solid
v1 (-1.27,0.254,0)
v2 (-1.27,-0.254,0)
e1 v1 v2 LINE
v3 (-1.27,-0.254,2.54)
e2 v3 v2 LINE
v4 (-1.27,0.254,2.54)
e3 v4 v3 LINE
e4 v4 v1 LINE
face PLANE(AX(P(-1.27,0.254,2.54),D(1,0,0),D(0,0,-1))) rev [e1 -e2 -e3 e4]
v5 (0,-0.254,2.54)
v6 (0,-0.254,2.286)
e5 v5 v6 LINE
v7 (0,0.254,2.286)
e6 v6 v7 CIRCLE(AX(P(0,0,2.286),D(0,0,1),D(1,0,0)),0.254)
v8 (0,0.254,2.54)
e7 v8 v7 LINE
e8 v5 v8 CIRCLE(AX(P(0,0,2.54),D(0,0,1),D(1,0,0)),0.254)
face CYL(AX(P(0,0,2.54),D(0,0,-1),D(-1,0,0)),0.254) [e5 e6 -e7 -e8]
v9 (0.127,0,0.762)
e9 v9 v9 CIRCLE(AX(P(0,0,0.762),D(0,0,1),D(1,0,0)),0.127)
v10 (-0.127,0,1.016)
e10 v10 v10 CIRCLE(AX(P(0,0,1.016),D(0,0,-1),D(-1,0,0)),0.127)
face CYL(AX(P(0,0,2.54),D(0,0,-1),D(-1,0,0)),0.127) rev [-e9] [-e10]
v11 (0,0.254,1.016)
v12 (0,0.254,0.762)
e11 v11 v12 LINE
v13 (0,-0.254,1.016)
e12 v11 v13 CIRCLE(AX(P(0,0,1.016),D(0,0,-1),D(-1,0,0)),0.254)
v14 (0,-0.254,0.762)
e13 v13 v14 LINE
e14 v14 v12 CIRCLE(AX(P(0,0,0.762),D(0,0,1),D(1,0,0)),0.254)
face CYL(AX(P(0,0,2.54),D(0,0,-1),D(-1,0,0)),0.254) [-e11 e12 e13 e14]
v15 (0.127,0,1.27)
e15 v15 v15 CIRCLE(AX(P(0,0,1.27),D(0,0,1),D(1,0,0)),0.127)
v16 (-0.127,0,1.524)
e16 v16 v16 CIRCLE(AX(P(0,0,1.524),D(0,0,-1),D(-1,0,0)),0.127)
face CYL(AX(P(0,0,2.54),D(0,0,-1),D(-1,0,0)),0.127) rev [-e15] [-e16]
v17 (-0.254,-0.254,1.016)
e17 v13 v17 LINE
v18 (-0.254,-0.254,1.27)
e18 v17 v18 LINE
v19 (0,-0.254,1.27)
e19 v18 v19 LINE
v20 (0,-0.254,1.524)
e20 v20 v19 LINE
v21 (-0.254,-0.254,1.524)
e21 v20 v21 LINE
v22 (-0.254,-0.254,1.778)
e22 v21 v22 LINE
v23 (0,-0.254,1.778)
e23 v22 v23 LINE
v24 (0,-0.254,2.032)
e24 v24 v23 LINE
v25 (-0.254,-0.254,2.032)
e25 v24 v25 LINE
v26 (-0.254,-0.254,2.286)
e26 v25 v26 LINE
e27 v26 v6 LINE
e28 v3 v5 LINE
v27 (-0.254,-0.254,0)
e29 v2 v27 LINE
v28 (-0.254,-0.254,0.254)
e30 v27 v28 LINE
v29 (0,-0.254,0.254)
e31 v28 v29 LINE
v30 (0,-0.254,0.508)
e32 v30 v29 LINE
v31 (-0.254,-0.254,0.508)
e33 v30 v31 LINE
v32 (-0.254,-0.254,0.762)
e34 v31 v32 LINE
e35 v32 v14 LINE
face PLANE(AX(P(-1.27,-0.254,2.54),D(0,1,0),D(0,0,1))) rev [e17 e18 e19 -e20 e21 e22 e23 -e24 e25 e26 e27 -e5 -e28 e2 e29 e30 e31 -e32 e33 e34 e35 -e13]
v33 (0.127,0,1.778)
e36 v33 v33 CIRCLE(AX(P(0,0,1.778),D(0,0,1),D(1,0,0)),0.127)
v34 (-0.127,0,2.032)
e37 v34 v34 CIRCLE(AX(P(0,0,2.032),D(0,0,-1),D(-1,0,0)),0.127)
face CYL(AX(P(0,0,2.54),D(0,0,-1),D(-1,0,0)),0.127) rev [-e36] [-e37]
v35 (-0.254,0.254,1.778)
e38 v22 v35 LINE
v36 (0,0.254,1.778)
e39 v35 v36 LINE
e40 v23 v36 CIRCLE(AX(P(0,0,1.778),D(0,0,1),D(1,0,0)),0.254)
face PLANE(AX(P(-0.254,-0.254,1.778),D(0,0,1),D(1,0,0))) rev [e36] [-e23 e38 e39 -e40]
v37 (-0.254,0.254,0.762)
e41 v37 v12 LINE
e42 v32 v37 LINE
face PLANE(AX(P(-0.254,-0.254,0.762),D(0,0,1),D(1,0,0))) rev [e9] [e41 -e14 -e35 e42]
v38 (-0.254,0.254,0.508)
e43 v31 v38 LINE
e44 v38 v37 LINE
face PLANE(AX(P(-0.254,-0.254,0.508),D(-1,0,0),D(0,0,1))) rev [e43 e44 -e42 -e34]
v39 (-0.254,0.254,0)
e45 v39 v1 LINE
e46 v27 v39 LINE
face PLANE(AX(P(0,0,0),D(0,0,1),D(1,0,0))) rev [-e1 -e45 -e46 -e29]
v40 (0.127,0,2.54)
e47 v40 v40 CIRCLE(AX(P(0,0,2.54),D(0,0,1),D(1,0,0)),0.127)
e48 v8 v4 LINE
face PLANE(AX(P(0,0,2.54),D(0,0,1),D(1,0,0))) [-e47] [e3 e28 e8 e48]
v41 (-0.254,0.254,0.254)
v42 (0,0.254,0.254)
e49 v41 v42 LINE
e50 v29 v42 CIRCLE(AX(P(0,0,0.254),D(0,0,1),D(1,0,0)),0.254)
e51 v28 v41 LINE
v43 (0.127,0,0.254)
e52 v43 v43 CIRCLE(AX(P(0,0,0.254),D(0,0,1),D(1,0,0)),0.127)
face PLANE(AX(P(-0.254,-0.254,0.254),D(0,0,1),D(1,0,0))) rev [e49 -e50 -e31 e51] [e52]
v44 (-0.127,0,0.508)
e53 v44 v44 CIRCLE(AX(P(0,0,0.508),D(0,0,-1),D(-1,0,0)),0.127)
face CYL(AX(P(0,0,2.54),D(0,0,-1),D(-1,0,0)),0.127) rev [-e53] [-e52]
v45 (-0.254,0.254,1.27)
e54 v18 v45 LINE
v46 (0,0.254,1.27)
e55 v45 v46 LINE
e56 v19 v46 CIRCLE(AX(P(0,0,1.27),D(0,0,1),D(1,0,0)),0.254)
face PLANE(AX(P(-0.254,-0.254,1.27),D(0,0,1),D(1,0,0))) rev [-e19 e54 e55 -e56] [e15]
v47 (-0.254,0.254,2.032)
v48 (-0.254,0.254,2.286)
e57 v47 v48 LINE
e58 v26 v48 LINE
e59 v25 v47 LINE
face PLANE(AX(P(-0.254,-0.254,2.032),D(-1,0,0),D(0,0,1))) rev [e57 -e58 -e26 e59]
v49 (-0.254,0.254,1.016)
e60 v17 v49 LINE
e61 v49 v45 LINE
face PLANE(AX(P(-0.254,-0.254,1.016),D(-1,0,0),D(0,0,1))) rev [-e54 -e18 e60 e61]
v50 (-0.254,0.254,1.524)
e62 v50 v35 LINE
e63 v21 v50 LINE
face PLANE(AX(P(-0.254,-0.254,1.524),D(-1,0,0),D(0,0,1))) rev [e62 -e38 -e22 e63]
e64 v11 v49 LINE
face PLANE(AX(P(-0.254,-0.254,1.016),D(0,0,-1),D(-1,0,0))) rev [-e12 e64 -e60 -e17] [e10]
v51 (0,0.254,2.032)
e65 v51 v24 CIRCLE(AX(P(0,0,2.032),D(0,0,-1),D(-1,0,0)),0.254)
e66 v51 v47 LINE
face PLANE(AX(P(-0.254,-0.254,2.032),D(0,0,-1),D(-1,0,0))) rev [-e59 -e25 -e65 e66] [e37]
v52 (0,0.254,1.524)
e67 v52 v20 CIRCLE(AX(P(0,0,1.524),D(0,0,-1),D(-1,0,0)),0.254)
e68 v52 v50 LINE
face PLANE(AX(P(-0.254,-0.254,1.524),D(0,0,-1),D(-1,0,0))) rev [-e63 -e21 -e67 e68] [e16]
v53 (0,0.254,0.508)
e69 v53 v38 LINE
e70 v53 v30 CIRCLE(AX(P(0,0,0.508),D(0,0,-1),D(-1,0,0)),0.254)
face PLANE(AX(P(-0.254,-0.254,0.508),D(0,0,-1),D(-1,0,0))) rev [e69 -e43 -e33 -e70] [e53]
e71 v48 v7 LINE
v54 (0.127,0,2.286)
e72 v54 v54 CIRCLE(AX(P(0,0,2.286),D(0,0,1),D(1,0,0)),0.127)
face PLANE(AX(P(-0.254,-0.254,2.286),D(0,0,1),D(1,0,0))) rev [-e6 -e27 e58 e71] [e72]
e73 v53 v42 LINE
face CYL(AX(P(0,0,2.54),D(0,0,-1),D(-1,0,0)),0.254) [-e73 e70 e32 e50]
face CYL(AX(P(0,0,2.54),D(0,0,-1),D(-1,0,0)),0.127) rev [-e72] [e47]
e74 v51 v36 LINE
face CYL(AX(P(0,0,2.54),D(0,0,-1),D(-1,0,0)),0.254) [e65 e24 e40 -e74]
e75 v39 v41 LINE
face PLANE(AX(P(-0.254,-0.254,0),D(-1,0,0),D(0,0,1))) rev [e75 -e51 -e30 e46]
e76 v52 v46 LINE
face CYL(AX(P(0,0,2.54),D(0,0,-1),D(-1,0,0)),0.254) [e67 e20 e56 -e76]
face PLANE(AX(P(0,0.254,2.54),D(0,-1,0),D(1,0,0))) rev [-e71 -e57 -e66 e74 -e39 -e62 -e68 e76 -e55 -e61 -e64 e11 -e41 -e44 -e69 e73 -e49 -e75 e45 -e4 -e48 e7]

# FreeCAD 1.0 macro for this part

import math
import FreeCAD as App
import Part
import Sketcher
from FreeCAD import Vector
Q = App.Units.Quantity

doc = App.newDocument("Part")
body = doc.addObject("PartDesign::Body", "Body")

sketch1 = body.newObject("Sketcher::SketchObject", "Sketch")
sketch1.AttachmentSupport = (doc.getObject("XY_Plane"), [""])
sketch1.MapMode = "FlatFace"
sketch1.addGeometry([
    Part.LineSegment(Vector(0, 0.25, 0), Vector(-1.27, 0.25, 0)),
    Part.LineSegment(Vector(-1.27, 0.25, 0), Vector(-1.27, -0.25, 0)),
    Part.LineSegment(Vector(-1.27, -0.25, 0), Vector(0, -0.25, 0)),
    Part.ArcOfCircle(Part.Circle(Vector(0, 0, 0), Vector(0, 0, 1), 0.25), math.radians(-90), math.radians(90)),
    Part.Circle(Vector(0, 0, 0), Vector(0, 0, 1), 0.13),
], False)
sketch1.addConstraint([
    Sketcher.Constraint("Coincident", 0, 2, 1, 1),
    Sketcher.Constraint("Coincident", 1, 2, 2, 1),
    Sketcher.Constraint("Tangent", 2, 2, 3, 1),
    Sketcher.Constraint("Tangent", 3, 2, 0, 1),
    Sketcher.Constraint("Horizontal", 0),
    Sketcher.Constraint("Vertical", 1),
    Sketcher.Constraint("Horizontal", 2),
    Sketcher.Constraint("Coincident", 3, 3, -1, 1),
    Sketcher.Constraint("Coincident", 4, 3, -1, 1),
    Sketcher.Constraint("Diameter", 4, Q("0.01 in")),
    Sketcher.Constraint("Radius", 3, Q("0.01 in")),
    Sketcher.Constraint("DistanceX", 0, 2, 0, 1, Q("0.05 in")),
])
pad1 = body.newObject("PartDesign::Pad", "Pad")
pad1.Profile = sketch1
pad1.Length = Q("0.1 in")

sketch2 = body.newObject("Sketcher::SketchObject", "Sketch001")
sketch2.AttachmentSupport = (doc.getObject("XZ_Plane"), [""])
sketch2.MapMode = "FlatFace"
sketch2.AttachmentOffset = App.Placement(Vector(0, 0, -0.01 * 25.4), App.Rotation())
sketch2.addGeometry([
    Part.LineSegment(Vector(-0.25, 0, 0), Vector(-0.25, 0.25, 0)),
    Part.LineSegment(Vector(-0.25, 0.25, 0), Vector(0.25, 0.25, 0)),
    Part.LineSegment(Vector(0.25, 0.25, 0), Vector(0.25, 0, 0)),
    Part.LineSegment(Vector(0.25, 0, 0), Vector(-0.25, 0, 0)),
    Part.LineSegment(Vector(-0.25, 0.51, 0), Vector(-0.25, 0.76, 0)),
    Part.LineSegment(Vector(-0.25, 0.76, 0), Vector(0.25, 0.76, 0)),
    Part.LineSegment(Vector(0.25, 0.76, 0), Vector(0.25, 0.51, 0)),
    Part.LineSegment(Vector(0.25, 0.51, 0), Vector(-0.25, 0.51, 0)),
    Part.LineSegment(Vector(-0.25, 1.02, 0), Vector(-0.25, 1.27, 0)),
    Part.LineSegment(Vector(-0.25, 1.27, 0), Vector(0.25, 1.27, 0)),
    Part.LineSegment(Vector(0.25, 1.27, 0), Vector(0.25, 1.02, 0)),
    Part.LineSegment(Vector(0.25, 1.02, 0), Vector(-0.25, 1.02, 0)),
    Part.LineSegment(Vector(-0.25, 1.52, 0), Vector(-0.25, 1.78, 0)),
    Part.LineSegment(Vector(-0.25, 1.78, 0), Vector(0.25, 1.78, 0)),
    Part.LineSegment(Vector(0.25, 1.78, 0), Vector(0.25, 1.52, 0)),
    Part.LineSegment(Vector(0.25, 1.52, 0), Vector(-0.25, 1.52, 0)),
    Part.LineSegment(Vector(-0.25, 2.03, 0), Vector(-0.25, 2.29, 0)),
    Part.LineSegment(Vector(-0.25, 2.29, 0), Vector(0.25, 2.29, 0)),
    Part.LineSegment(Vector(0.25, 2.29, 0), Vector(0.25, 2.03, 0)),
    Part.LineSegment(Vector(0.25, 2.03, 0), Vector(-0.25, 2.03, 0)),
], False)
sketch2.addConstraint([
    Sketcher.Constraint("Coincident", 0, 2, 1, 1),
    Sketcher.Constraint("Coincident", 1, 2, 2, 1),
    Sketcher.Constraint("Coincident", 2, 2, 3, 1),
    Sketcher.Constraint("Coincident", 3, 2, 0, 1),
    Sketcher.Constraint("Coincident", 4, 2, 5, 1),
    Sketcher.Constraint("Coincident", 5, 2, 6, 1),
    Sketcher.Constraint("Coincident", 6, 2, 7, 1),
    Sketcher.Constraint("Coincident", 7, 2, 4, 1),
    Sketcher.Constraint("Coincident", 8, 2, 9, 1),
    Sketcher.Constraint("Coincident", 9, 2, 10, 1),
    Sketcher.Constraint("Coincident", 10, 2, 11, 1),
    Sketcher.Constraint("Coincident", 11, 2, 8, 1),
    Sketcher.Constraint("Coincident", 12, 2, 13, 1),
    Sketcher.Constraint("Coincident", 13, 2, 14, 1),
    Sketcher.Constraint("Coincident", 14, 2, 15, 1),
    Sketcher.Constraint("Coincident", 15, 2, 12, 1),
    Sketcher.Constraint("Coincident", 16, 2, 17, 1),
    Sketcher.Constraint("Coincident", 17, 2, 18, 1),
    Sketcher.Constraint("Coincident", 18, 2, 19, 1),
    Sketcher.Constraint("Coincident", 19, 2, 16, 1),
    Sketcher.Constraint("Vertical", 0),
    Sketcher.Constraint("Horizontal", 1),
    Sketcher.Constraint("Vertical", 2),
    Sketcher.Constraint("Horizontal", 3),
    Sketcher.Constraint("Vertical", 4),
    Sketcher.Constraint("Horizontal", 5),
    Sketcher.Constraint("Vertical", 6),
    Sketcher.Constraint("Horizontal", 7),
    Sketcher.Constraint("Vertical", 8),
    Sketcher.Constraint("Horizontal", 9),
    Sketcher.Constraint("Vertical", 10),
    Sketcher.Constraint("Horizontal", 11),
    Sketcher.Constraint("Vertical", 12),
    Sketcher.Constraint("Horizontal", 13),
    Sketcher.Constraint("Vertical", 14),
    Sketcher.Constraint("Horizontal", 15),
    Sketcher.Constraint("Vertical", 16),
    Sketcher.Constraint("Horizontal", 17),
    Sketcher.Constraint("Vertical", 18),
    Sketcher.Constraint("Horizontal", 19),
    Sketcher.Constraint("Symmetric", 2, 2, 3, 2, -1, 1),
    Sketcher.Constraint("Vertical", 3, 2, 4, 2),
    Sketcher.Constraint("Vertical", 2, 2, 5, 2),
    Sketcher.Constraint("Vertical", 7, 2, 8, 2),
    Sketcher.Constraint("Vertical", 6, 2, 9, 2),
    Sketcher.Constraint("Vertical", 11, 2, 12, 2),
    Sketcher.Constraint("Vertical", 10, 2, 13, 2),
    Sketcher.Constraint("Vertical", 15, 2, 16, 2),
    Sketcher.Constraint("Vertical", 14, 2, 17, 2),
    Sketcher.Constraint("Equal", 2, 4),
    Sketcher.Constraint("Equal", 6, 8),
    Sketcher.Constraint("Equal", 10, 12),
    Sketcher.Constraint("Equal", 14, 16),
    Sketcher.Constraint("DistanceX", 1, 1, 1, 2, Q("0.02 in")),
    Sketcher.Constraint("DistanceY", 0, 1, 0, 2, Q("0.01 in")),
    Sketcher.Constraint("DistanceY", -1, 1, 4, 2, Q("0.03 in")),
    Sketcher.Constraint("DistanceY", -1, 1, 8, 2, Q("0.05 in")),
    Sketcher.Constraint("DistanceY", -1, 1, 12, 2, Q("0.07 in")),
    Sketcher.Constraint("DistanceY", -1, 1, 16, 2, Q("0.09 in")),
])
pocket1 = body.newObject("PartDesign::Pocket", "Pocket")
pocket1.Profile = sketch2
pocket1.Type = "ThroughAll"
pocket1.Reversed = True

doc.recompute()
